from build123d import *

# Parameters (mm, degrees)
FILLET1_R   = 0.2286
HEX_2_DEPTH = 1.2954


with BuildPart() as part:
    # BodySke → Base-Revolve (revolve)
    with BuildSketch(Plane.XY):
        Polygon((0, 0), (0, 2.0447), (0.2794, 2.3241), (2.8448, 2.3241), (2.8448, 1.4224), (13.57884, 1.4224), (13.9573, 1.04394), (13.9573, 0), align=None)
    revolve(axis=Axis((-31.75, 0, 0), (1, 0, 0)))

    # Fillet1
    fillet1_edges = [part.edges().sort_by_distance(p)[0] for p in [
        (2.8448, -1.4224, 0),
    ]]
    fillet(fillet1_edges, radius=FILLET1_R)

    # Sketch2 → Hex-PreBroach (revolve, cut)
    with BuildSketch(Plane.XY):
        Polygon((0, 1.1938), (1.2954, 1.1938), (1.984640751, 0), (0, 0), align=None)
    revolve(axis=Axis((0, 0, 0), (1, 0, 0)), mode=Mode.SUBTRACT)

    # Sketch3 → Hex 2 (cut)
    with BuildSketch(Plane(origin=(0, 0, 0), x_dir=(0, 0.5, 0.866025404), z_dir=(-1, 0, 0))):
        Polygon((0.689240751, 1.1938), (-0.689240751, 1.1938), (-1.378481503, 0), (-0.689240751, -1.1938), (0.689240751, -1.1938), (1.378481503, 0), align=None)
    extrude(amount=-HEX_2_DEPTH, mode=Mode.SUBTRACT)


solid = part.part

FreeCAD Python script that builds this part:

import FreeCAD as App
import Part
import Sketcher
from FreeCAD import Vector
Q = App.Units.Quantity


def edges_at(feature, points):
    """Names of the edges that pass closest to the given points."""
    edges = feature.Shape.Edges
    near = lambda p: min(range(len(edges)), key=lambda i: edges[i].distToShape(Part.Vertex(*p))[0])
    return sorted({f"Edge{near(p) + 1}" for p in points})


def add_polygon(sketch, points):
    """Adds a closed chain of lines whose ends are joined by coincident constraints."""
    first, n = sketch.GeometryCount, len(points)
    for a, b in zip(points, points[1:] + points[:1]):
        sketch.addGeometry(Part.LineSegment(App.Vector(*a, 0), App.Vector(*b, 0)), False)
    for i in range(n):
        sketch.addConstraint(Sketcher.Constraint("Coincident", first + i, 2, first + (i + 1) % n, 1))

doc = App.newDocument("Part")
body = doc.addObject("PartDesign::Body", "Body")

# Sketch on XY plane
sketch1 = body.newObject("Sketcher::SketchObject", "Sketch")
sketch1.AttachmentSupport = (doc.getObject("XY_Plane"), [""])
sketch1.MapMode = "FlatFace"
add_polygon(sketch1, [(0, 2.04), (0, 0), (13.96, 0), (13.96, 1.04), (13.58, 1.42), (2.84, 1.42), (2.84, 2.32), (0.28, 2.32)])  # lines 0-7
sketch1.addConstraint(Sketcher.Constraint("Vertical", 0))
sketch1.addConstraint(Sketcher.Constraint("Horizontal", 1))
sketch1.addConstraint(Sketcher.Constraint("Vertical", 2))
sketch1.addConstraint(Sketcher.Constraint("Horizontal", 4))
sketch1.addConstraint(Sketcher.Constraint("Vertical", 5))
sketch1.addConstraint(Sketcher.Constraint("Horizontal", 6))
sketch1.addConstraint(Sketcher.Constraint("Coincident", 0, 2, -1, 1))
sketch1.addConstraint(Sketcher.Constraint("Perpendicular", 3, 7))
sketch1.addConstraint(Sketcher.Constraint("Angle", 3, Q("135 deg")))
sketch1.addConstraint(Sketcher.Constraint("DistanceX", 6, 2, 6, 1, Q("0.101 in")))
sketch1.addConstraint(Sketcher.Constraint("DistanceX", 1, 1, 1, 2, Q("0.5495 in")))
sketch1.addConstraint(Sketcher.Constraint("DistanceX", 4, 2, 4, 1, Q("0.4226 in")))
sketch1.addConstraint(Sketcher.Constraint("DistanceY", 0, 2, 0, 1, Q("0.0805 in")))
sketch1.addConstraint(Sketcher.Constraint("DistanceY", 2, 1, 2, 2, Q("0.0411 in")))
sketch1.addConstraint(Sketcher.Constraint("DistanceY", 5, 1, 5, 2, Q("0.0355 in")))
revolution = body.newObject("PartDesign::Revolution", "Revolution")
revolution.Profile = sketch1
revolution.ReferenceAxis = (sketch1, ["H_Axis"])
revolution.Angle = 360
doc.recompute()

fillet = body.newObject("PartDesign::Fillet", "Fillet")
fillet.Base = (revolution, edges_at(revolution, [(2.845, -1.422, 0)]))
fillet.Radius = Q("0.009 in")

# Sketch on XY plane
sketch2 = body.newObject("Sketcher::SketchObject", "Sketch001")
sketch2.AttachmentSupport = (doc.getObject("XY_Plane"), [""])
sketch2.MapMode = "FlatFace"
add_polygon(sketch2, [(1.3, 1.2), (0, 1.2), (0, 0), (2, 0)])  # lines 0-3
sketch2.addConstraint(Sketcher.Constraint("Horizontal", 0))
sketch2.addConstraint(Sketcher.Constraint("Vertical", 1))
sketch2.addConstraint(Sketcher.Constraint("Horizontal", 2))
sketch2.addConstraint(Sketcher.Constraint("Coincident", 1, 2, -1, 1))
sketch2.addConstraint(Sketcher.Constraint("Angle", 3, Q("120 deg")))
sketch2.addConstraint(Sketcher.Constraint("DistanceX", 0, 2, 0, 1, Q("0.051 in")))
sketch2.addConstraint(Sketcher.Constraint("DistanceY", 1, 2, 1, 1, Q("0.047 in")))
groove = body.newObject("PartDesign::Groove", "Groove")
groove.Profile = sketch2
groove.ReferenceAxis = (sketch2, ["H_Axis"])
groove.Angle = 360

# Sketch on YZ plane
sketch3 = body.newObject("Sketcher::SketchObject", "Sketch002")
sketch3.AttachmentSupport = (doc.getObject("YZ_Plane"), [""])
sketch3.MapMode = "FlatFace"
add_polygon(sketch3, [(1.4, 0), (0.7, -1.2), (-0.7, -1.2), (-1.4, 0), (-0.7, 1.2), (0.7, 1.2)])  # lines 0-5
sketch3.addConstraint(Sketcher.Constraint("Horizontal", 1))
sketch3.addConstraint(Sketcher.Constraint("Horizontal", 4))
sketch3.addConstraint(Sketcher.Constraint("Symmetric", 0, 2, 3, 2, -1, 1))
sketch3.addConstraint(Sketcher.Constraint("Symmetric", 2, 2, 5, 2, -1, 1))
sketch3.addConstraint(Sketcher.Constraint("PointOnObject", 2, 2, -1))
sketch3.addConstraint(Sketcher.Constraint("Parallel", 2, 5))
sketch3.addConstraint(Sketcher.Constraint("Vertical", 1, 2, 3, 2))
sketch3.addConstraint(Sketcher.Constraint("Angle", 0, Q("-120 deg")))
sketch3.addConstraint(Sketcher.Constraint("DistanceY", 0, 2, -1, 1, Q("0.047 in")))
sketch3.addConstraint(Sketcher.Constraint("DistanceX", 1, 2, 1, 1, Q("1.378482 mm")))
pocket1 = body.newObject("PartDesign::Pocket", "Pocket")
pocket1.Profile = sketch3
pocket1.Length = Q("0.051 in")
pocket1.Reversed = True

doc.recompute()
